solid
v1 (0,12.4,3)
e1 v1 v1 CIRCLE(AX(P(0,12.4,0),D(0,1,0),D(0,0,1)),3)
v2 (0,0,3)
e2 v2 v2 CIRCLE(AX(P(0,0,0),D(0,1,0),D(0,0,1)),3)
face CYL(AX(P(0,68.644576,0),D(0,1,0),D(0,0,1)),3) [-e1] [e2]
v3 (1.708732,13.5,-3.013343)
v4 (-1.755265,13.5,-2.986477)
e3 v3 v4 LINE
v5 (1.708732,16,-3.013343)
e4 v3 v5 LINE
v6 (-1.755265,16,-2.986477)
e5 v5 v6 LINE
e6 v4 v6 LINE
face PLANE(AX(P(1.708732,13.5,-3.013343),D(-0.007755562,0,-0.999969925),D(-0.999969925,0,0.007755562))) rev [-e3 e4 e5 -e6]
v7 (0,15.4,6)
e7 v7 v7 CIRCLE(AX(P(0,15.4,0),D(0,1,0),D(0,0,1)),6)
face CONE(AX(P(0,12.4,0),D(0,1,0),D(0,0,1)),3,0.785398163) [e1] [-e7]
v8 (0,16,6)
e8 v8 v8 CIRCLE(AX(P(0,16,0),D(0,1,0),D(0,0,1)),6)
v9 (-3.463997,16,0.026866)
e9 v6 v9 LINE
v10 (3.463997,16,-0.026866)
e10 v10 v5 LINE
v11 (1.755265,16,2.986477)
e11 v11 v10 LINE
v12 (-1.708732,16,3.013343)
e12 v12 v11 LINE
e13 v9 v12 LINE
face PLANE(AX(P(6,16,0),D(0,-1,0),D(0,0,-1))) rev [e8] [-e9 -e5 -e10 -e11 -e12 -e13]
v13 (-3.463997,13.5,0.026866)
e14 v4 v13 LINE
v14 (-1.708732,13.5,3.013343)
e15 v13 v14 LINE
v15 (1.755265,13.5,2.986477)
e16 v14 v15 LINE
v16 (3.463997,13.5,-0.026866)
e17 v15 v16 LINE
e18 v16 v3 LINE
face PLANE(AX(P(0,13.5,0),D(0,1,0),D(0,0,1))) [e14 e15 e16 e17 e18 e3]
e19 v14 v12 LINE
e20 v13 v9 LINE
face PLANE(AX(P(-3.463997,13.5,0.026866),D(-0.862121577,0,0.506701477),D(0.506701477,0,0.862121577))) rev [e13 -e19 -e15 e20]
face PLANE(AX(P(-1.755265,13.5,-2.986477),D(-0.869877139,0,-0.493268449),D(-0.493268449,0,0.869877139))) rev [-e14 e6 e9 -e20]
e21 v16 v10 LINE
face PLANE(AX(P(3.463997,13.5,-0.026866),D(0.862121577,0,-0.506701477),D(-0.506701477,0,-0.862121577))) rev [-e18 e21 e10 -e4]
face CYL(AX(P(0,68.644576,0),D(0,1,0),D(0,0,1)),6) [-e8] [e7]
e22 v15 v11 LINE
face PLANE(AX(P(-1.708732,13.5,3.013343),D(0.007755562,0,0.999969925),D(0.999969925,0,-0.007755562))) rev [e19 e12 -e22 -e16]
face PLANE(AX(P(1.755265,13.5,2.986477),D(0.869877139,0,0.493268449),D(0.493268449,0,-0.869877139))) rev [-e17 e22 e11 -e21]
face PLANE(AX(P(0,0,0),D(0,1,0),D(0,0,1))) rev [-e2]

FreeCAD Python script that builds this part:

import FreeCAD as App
import Part
import Sketcher
from FreeCAD import Vector
Q = App.Units.Quantity

doc = App.newDocument("Part")
params = doc.addObject("Spreadsheet::Sheet", "Params")
for row, (alias, value) in enumerate([
    ("sketch1_width", "3 mm"),
    ("sketch1_width2", "6 mm"),
    ("sketch1_height", "16 mm"),
    ("sketch1_height2", "12.4 mm"),
    ("revolution_angle", "360 deg"),
    ("pocket1_length", "2.5 mm"),
], start=1):
    params.set(f"A{row}", alias)
    params.set(f"B{row}", "=" + value)
    params.setAlias(f"B{row}", alias)

body = doc.addObject("PartDesign::Body", "Body")

# Sketch on XY plane
sketch1 = body.newObject("Sketcher::SketchObject", "Sketch")
sketch1.AttachmentSupport = (doc.getObject("XY_Plane"), [""])
sketch1.MapMode = "FlatFace"
sketch1.addGeometry([
    Part.LineSegment(Vector(0, 0, 0), Vector(3, 0, 0)),  # 0
    Part.LineSegment(Vector(3, 0, 0), Vector(3, 12.4, 0)),  # 1
    Part.LineSegment(Vector(3, 12.4, 0), Vector(6, 15.4, 0)),  # 2
    Part.LineSegment(Vector(6, 15.4, 0), Vector(6, 16, 0)),  # 3
    Part.LineSegment(Vector(6, 16, 0), Vector(0, 16, 0)),  # 4
    Part.LineSegment(Vector(0, 16, 0), Vector(0, 0, 0)),  # 5
], False)
sketch1.addConstraint([
    Sketcher.Constraint("Coincident", 0, 2, 1, 1),
    Sketcher.Constraint("Coincident", 1, 2, 2, 1),
    Sketcher.Constraint("Coincident", 2, 2, 3, 1),
    Sketcher.Constraint("Coincident", 3, 2, 4, 1),
    Sketcher.Constraint("Coincident", 4, 2, 5, 1),
    Sketcher.Constraint("Coincident", 5, 2, 0, 1),
    Sketcher.Constraint("Horizontal", 0),
    Sketcher.Constraint("Vertical", 1),
    Sketcher.Constraint("Vertical", 3),
    Sketcher.Constraint("Horizontal", 4),
    Sketcher.Constraint("Vertical", 5),
    Sketcher.Constraint("Coincident", 5, 2, -1, 1),
    Sketcher.Constraint("DistanceX", 0, 1, 0, 2, 3.0),
    Sketcher.Constraint("DistanceX", 4, 2, 4, 1, 6.0),
    Sketcher.Constraint("DistanceY", 5, 2, 5, 1, 16.0),
    Sketcher.Constraint("Angle", 2, Q("45 deg")),
    Sketcher.Constraint("DistanceY", 1, 1, 1, 2, 12.4),
])
sketch1.setExpression("Constraints[12]", "Params.sketch1_width")
sketch1.setExpression("Constraints[13]", "Params.sketch1_width2")
sketch1.setExpression("Constraints[14]", "Params.sketch1_height")
sketch1.setExpression("Constraints[16]", "Params.sketch1_height2")
revolution = body.newObject("PartDesign::Revolution", "Revolution")
revolution.Profile = sketch1
revolution.ReferenceAxis = (sketch1, ["V_Axis"])
revolution.setExpression("Angle", "Params.revolution_angle")

# Sketch on XZ plane
sketch2 = body.newObject("Sketcher::SketchObject", "Sketch001")
sketch2.AttachmentSupport = (doc.getObject("XZ_Plane"), [""])
sketch2.MapMode = "FlatFace"
sketch2.AttachmentOffset = App.Placement(Vector(0, 0, -16), App.Rotation())
sketch2.addGeometry([
    Part.LineSegment(Vector(1.8, 3, 0), Vector(3.5, 0, 0)),  # 0
    Part.LineSegment(Vector(3.5, 0, 0), Vector(1.7, -3, 0)),  # 1
    Part.LineSegment(Vector(1.7, -3, 0), Vector(-1.8, -3, 0)),  # 2
    Part.LineSegment(Vector(-1.8, -3, 0), Vector(-3.5, 0, 0)),  # 3
    Part.LineSegment(Vector(-3.5, 0, 0), Vector(-1.7, 3, 0)),  # 4
    Part.LineSegment(Vector(-1.7, 3, 0), Vector(1.8, 3, 0)),  # 5
], False)
sketch2.addConstraint([
    Sketcher.Constraint("Coincident", 0, 2, 1, 1),
    Sketcher.Constraint("Coincident", 1, 2, 2, 1),
    Sketcher.Constraint("Coincident", 2, 2, 3, 1),
    Sketcher.Constraint("Coincident", 3, 2, 4, 1),
    Sketcher.Constraint("Coincident", 4, 2, 5, 1),
    Sketcher.Constraint("Coincident", 5, 2, 0, 1),
    Sketcher.Constraint("Symmetric", 0, 2, 3, 2, -1, 1),
    Sketcher.Constraint("Symmetric", 1, 2, 4, 2, -1, 1),
    Sketcher.Constraint("Symmetric", 2, 2, 5, 2, -1, 1),
    Sketcher.Constraint("Equal", 0, 1),
    Sketcher.Constraint("Equal", 1, 2),
    Sketcher.Constraint("Distance", 0, 3.464102),
    Sketcher.Constraint("DistanceY", 2, 2, 0, 2, 2.959611),
    Sketcher.Constraint("DistanceX", 3, 2, 1, 2, 5.172729),
    Sketcher.Constraint("DistanceY", 1, 2, 3, 2, 3.040209),
])
pocket1 = body.newObject("PartDesign::Pocket", "Pocket")
pocket1.Profile = sketch2
pocket1.setExpression("Length", "Params.pocket1_length")
pocket1.Reversed = True

doc.recompute()
